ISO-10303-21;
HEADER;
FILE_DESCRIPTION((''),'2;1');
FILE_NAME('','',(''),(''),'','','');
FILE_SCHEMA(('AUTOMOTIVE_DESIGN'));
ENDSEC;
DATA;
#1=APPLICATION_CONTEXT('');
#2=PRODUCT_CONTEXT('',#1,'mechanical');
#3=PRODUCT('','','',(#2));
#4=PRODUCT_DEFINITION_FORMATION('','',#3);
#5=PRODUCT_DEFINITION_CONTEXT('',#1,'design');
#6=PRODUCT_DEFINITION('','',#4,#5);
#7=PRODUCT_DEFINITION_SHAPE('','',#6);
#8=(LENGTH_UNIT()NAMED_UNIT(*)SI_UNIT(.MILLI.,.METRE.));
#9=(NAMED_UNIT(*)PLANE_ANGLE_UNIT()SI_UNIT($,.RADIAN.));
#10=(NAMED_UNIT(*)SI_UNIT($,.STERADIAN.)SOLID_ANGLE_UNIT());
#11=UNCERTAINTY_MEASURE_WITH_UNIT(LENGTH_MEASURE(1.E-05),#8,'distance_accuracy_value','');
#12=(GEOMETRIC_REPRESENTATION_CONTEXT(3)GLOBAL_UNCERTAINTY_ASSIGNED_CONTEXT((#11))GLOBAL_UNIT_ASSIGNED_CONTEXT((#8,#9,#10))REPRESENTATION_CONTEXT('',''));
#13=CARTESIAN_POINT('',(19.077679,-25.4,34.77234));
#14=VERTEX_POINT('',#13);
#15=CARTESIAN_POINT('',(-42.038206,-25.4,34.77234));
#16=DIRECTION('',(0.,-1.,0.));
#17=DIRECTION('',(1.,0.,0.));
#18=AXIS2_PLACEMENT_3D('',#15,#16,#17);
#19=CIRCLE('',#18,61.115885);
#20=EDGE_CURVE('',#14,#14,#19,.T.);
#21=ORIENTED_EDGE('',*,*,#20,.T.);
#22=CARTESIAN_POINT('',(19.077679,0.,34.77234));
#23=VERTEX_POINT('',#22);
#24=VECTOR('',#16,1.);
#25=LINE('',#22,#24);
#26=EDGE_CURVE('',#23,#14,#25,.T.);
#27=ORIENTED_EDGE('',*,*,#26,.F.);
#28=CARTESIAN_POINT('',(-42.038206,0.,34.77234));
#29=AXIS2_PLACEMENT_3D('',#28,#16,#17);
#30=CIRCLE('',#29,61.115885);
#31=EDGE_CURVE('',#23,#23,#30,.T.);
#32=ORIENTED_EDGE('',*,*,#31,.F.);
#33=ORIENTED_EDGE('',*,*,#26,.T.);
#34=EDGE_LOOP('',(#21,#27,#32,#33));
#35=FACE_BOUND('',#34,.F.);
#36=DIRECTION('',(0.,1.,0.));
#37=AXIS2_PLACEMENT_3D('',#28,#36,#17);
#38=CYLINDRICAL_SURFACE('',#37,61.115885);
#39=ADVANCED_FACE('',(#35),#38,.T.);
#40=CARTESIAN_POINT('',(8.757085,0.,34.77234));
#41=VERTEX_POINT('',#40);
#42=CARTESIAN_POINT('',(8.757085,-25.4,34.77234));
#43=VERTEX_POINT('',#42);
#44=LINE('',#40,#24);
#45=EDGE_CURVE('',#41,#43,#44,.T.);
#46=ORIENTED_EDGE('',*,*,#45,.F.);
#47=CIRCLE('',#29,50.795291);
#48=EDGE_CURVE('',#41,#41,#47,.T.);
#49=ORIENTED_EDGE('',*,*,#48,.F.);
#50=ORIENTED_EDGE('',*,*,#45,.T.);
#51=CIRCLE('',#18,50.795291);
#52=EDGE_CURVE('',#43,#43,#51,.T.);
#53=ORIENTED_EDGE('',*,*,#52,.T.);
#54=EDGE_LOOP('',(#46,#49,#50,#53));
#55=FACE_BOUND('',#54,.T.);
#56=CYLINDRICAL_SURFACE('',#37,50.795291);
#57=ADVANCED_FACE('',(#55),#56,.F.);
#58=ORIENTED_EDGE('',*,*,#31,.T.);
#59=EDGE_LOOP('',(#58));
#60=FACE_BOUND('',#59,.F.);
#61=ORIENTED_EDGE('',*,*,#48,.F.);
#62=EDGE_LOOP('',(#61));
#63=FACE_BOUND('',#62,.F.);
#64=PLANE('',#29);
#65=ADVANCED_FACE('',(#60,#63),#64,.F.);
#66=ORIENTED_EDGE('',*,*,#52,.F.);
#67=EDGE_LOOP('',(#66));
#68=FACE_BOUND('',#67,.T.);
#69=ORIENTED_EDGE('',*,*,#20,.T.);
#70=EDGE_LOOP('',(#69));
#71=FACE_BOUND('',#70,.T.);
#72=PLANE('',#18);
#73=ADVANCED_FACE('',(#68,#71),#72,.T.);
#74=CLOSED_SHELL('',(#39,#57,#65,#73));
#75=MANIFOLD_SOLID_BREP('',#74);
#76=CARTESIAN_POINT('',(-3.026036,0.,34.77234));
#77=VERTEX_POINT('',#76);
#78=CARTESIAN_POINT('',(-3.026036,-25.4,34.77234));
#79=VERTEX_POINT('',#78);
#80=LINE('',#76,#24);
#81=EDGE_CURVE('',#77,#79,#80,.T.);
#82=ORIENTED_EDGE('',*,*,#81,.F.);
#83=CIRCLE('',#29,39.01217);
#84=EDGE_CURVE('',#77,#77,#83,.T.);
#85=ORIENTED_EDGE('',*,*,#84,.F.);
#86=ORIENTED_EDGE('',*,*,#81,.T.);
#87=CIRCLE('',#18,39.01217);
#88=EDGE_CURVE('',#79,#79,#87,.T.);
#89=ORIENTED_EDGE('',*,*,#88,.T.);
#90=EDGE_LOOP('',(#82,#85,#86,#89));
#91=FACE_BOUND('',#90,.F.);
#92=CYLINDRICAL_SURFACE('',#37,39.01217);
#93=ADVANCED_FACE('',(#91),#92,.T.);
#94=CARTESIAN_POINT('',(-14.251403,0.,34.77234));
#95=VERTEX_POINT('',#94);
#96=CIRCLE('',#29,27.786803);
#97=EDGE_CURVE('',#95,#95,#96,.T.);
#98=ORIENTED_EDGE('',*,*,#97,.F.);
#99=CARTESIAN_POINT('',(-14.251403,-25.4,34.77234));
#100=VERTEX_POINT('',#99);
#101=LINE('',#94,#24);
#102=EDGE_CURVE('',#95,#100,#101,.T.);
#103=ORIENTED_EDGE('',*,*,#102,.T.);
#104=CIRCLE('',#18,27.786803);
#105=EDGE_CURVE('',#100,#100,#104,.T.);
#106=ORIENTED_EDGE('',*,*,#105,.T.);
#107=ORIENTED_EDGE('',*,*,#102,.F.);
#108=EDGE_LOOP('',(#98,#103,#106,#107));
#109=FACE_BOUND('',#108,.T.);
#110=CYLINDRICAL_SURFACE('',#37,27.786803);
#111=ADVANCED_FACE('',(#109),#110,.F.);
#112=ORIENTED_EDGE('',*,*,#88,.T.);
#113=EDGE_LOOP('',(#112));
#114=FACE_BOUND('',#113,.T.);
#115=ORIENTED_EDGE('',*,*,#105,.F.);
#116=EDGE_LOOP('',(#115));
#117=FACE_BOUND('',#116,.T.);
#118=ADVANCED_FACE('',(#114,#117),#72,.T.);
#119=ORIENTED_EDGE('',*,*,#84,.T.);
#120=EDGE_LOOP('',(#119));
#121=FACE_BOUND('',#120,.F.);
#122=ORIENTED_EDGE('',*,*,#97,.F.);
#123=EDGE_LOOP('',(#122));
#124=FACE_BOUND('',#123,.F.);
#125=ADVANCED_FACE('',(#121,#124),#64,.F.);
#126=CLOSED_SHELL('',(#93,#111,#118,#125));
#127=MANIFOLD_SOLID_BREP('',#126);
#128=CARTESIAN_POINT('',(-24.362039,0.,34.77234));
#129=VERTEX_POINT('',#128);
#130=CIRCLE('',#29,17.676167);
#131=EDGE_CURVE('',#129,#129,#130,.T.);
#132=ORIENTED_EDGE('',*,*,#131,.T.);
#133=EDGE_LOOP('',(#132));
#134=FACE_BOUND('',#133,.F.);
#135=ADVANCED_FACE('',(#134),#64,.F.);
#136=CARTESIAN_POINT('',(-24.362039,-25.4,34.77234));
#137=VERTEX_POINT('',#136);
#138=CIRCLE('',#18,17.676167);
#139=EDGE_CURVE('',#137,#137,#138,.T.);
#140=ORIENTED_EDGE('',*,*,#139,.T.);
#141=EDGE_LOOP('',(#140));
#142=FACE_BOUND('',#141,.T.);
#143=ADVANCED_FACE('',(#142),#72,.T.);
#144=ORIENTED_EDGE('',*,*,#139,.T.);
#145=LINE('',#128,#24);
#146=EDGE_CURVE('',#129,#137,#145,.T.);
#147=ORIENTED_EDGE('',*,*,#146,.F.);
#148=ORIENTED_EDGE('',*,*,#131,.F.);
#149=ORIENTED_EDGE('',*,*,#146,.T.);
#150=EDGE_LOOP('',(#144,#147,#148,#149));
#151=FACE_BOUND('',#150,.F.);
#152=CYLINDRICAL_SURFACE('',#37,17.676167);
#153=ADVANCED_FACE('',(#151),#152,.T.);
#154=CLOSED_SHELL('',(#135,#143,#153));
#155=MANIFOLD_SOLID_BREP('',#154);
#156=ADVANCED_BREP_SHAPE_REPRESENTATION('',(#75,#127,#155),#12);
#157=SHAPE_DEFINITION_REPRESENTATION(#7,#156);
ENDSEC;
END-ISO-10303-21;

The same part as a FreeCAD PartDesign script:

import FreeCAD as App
import Part
import Sketcher
from FreeCAD import Vector
Q = App.Units.Quantity

doc = App.newDocument("Part")
body = doc.addObject("PartDesign::Body", "Body")

# Sketch on XZ plane
sketch1 = body.newObject("Sketcher::SketchObject", "Sketch")
sketch1.AttachmentSupport = (doc.getObject("XZ_Plane"), [""])
sketch1.MapMode = "FlatFace"
sketch1.addGeometry([
    Part.Circle(Vector(-42, 35, 0), Vector(0, 0, 1), 61),
    Part.Circle(Vector(-42, 35, 0), Vector(0, 0, 1), 51),
], False)
sketch1.addConstraint([
    Sketcher.Constraint("Coincident", 1, 3, 0, 3),
    Sketcher.Constraint("Diameter", 0, Q("122.231771 mm")),
    Sketcher.Constraint("Diameter", 1, Q("101.590582 mm")),
    Sketcher.Constraint("DistanceY", -1, 1, 0, 3, Q("34.77234 mm")),
    Sketcher.Constraint("DistanceX", 0, 3, -1, 1, Q("42.038206 mm")),
])
pad1 = body.newObject("PartDesign::Pad", "Pad")
pad1.Profile = sketch1
pad1.Length = Q("1 in")
body2 = doc.addObject("PartDesign::Body", "Body001")

# Sketch on XZ plane
sketch2 = body2.newObject("Sketcher::SketchObject", "Sketch001")
sketch2.AttachmentSupport = (doc.getObject("XZ_Plane001"), [""])
sketch2.MapMode = "FlatFace"
sketch2.addGeometry(Part.Circle(Vector(-42, 35, 0), Vector(0, 0, 1), 18), False)
sketch2.addConstraint([
    Sketcher.Constraint("Diameter", 0, Q("35.352335 mm")),
    Sketcher.Constraint("DistanceY", -1, 1, 0, 3, Q("34.77234 mm")),
    Sketcher.Constraint("DistanceX", 0, 3, -1, 1, Q("42.038206 mm")),
])
pad2 = body2.newObject("PartDesign::Pad", "Pad001")
pad2.Profile = sketch2
pad2.Length = Q("1 in")
body3 = doc.addObject("PartDesign::Body", "Body002")

# Sketch on XZ plane
sketch3 = body3.newObject("Sketcher::SketchObject", "Sketch002")
sketch3.AttachmentSupport = (doc.getObject("XZ_Plane002"), [""])
sketch3.MapMode = "FlatFace"
sketch3.addGeometry([
    Part.Circle(Vector(-42, 35, 0), Vector(0, 0, 1), 39),
    Part.Circle(Vector(-42, 35, 0), Vector(0, 0, 1), 28),
], False)
sketch3.addConstraint([
    Sketcher.Constraint("Coincident", 1, 3, 0, 3),
    Sketcher.Constraint("Diameter", 0, Q("78.024339 mm")),
    Sketcher.Constraint("Diameter", 1, Q("55.573606 mm")),
    Sketcher.Constraint("DistanceY", -1, 1, 0, 3, Q("34.77234 mm")),
    Sketcher.Constraint("DistanceX", 0, 3, -1, 1, Q("42.038206 mm")),
])
pad3 = body3.newObject("PartDesign::Pad", "Pad002")
pad3.Profile = sketch3
pad3.Length = Q("1 in")

doc.recompute()
